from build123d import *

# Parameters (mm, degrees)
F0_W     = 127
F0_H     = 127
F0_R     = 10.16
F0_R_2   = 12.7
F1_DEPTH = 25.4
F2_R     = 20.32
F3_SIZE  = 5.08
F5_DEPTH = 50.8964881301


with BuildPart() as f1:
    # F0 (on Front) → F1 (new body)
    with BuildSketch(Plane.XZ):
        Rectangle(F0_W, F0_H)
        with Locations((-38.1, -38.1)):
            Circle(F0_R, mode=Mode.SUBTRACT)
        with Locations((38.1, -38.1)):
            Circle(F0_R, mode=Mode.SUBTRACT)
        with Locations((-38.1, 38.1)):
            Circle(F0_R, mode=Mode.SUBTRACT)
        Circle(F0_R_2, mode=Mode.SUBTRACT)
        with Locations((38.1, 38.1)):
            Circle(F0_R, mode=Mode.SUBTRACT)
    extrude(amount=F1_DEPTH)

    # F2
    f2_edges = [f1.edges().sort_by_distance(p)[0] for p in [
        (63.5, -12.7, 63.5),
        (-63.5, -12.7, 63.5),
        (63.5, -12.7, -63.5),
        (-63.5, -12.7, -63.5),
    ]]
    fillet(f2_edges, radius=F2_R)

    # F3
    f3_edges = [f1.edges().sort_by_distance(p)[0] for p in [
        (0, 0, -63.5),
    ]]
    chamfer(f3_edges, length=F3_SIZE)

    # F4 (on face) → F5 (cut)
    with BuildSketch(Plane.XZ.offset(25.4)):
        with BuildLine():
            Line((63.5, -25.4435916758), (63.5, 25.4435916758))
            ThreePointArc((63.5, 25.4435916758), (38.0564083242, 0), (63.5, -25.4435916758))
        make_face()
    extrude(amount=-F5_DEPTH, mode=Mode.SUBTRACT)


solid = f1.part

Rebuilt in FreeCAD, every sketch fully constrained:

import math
import FreeCAD as App
import Part
import Sketcher
from FreeCAD import Vector
Q = App.Units.Quantity


def edges_at(feature, points):
    """Names of the edges that pass closest to the given points."""
    edges = feature.Shape.Edges
    near = lambda p: min(range(len(edges)), key=lambda i: edges[i].distToShape(Part.Vertex(*p))[0])
    return sorted({f"Edge{near(p) + 1}" for p in points})

doc = App.newDocument("Part")
params = doc.addObject("Spreadsheet::Sheet", "Params")
for row, (alias, value) in enumerate([
    ("sketch1_diameter", "1 in"),
    ("sketch1_diameter2", "0.8 in"),
    ("sketch1_width", "5 in"),
    ("pad1_length", "1 in"),
    ("fillet_radius", "0.8 in"),
    ("chamfer_size", "0.2 in"),
    ("pocket1_length", "50.896488 mm"),
], start=1):
    params.set(f"A{row}", alias)
    params.set(f"B{row}", "=" + value)
    params.setAlias(f"B{row}", alias)

body = doc.addObject("PartDesign::Body", "Body")

# Sketch on XZ plane
sketch1 = body.newObject("Sketcher::SketchObject", "Sketch")
sketch1.AttachmentSupport = (doc.getObject("XZ_Plane"), [""])
sketch1.MapMode = "FlatFace"
sketch1.addGeometry([
    Part.LineSegment(Vector(-64, 64, 0), Vector(-64, -64, 0)),  # 0
    Part.LineSegment(Vector(-64, -64, 0), Vector(64, -64, 0)),  # 1
    Part.LineSegment(Vector(64, -64, 0), Vector(64, 64, 0)),  # 2
    Part.LineSegment(Vector(64, 64, 0), Vector(-64, 64, 0)),  # 3
    Part.Circle(Vector(-38, -38, 0), Vector(0, 0, 1), 10),  # 4
    Part.Circle(Vector(38, -38, 0), Vector(0, 0, 1), 10),  # 5
    Part.Circle(Vector(-38, 38, 0), Vector(0, 0, 1), 10),  # 6
    Part.Circle(Vector(0, 0, 0), Vector(0, 0, 1), 13),  # 7
    Part.Circle(Vector(38, 38, 0), Vector(0, 0, 1), 10),  # 8
], False)
sketch1.addConstraint([
    Sketcher.Constraint("Coincident", 0, 2, 1, 1),
    Sketcher.Constraint("Coincident", 1, 2, 2, 1),
    Sketcher.Constraint("Coincident", 2, 2, 3, 1),
    Sketcher.Constraint("Coincident", 3, 2, 0, 1),
    Sketcher.Constraint("Vertical", 0),
    Sketcher.Constraint("Horizontal", 1),
    Sketcher.Constraint("Vertical", 2),
    Sketcher.Constraint("Horizontal", 3),
    Sketcher.Constraint("Coincident", 7, 3, -1, 1),
    Sketcher.Constraint("Equal", 4, 5),
    Sketcher.Constraint("Equal", 5, 6),
    Sketcher.Constraint("Equal", 6, 8),
    Sketcher.Constraint("Symmetric", 5, 3, 6, 3, -1, 1),
    Sketcher.Constraint("Symmetric", 4, 3, 8, 3, -1, 1),
    Sketcher.Constraint("Symmetric", 0, 2, 2, 2, -1, 1),
    Sketcher.Constraint("Symmetric", 4, 3, 5, 3, -2),
    Sketcher.Constraint("Equal", 3, 0),
    Sketcher.Constraint("Diameter", 7, Q("1 in")),
    Sketcher.Constraint("Diameter", 4, Q("0.8 in")),
    Sketcher.Constraint("DistanceX", 1, 1, 1, 2, Q("5 in")),
    Sketcher.Constraint("DistanceX", 4, 3, 5, 3, Q("3 in")),
    Sketcher.Constraint("DistanceY", 4, 3, 6, 3, Q("3 in")),
])
sketch1.setExpression("Constraints[17]", "Params.sketch1_diameter")
sketch1.setExpression("Constraints[18]", "Params.sketch1_diameter2")
sketch1.setExpression("Constraints[19]", "Params.sketch1_width")
pad1 = body.newObject("PartDesign::Pad", "Pad")
pad1.Profile = sketch1
pad1.setExpression("Length", "Params.pad1_length")
doc.recompute()

fillet = body.newObject("PartDesign::Fillet", "Fillet")
fillet.Base = (pad1, edges_at(pad1, [
    (63.5, -12.7, 63.5),
    (-63.5, -12.7, 63.5),
    (63.5, -12.7, -63.5),
    (-63.5, -12.7, -63.5),
]))
fillet.setExpression("Radius", "Params.fillet_radius")
doc.recompute()

chamfer = body.newObject("PartDesign::Chamfer", "Chamfer")
chamfer.Base = (fillet, edges_at(fillet, [(0, 0, -63.5)]))
chamfer.setExpression("Size", "Params.chamfer_size")

# Sketch on XZ plane
sketch2 = body.newObject("Sketcher::SketchObject", "Sketch001")
sketch2.AttachmentSupport = (doc.getObject("XZ_Plane"), [""])
sketch2.MapMode = "FlatFace"
sketch2.AttachmentOffset = App.Placement(Vector(0, 0, 1 * 25.4), App.Rotation())
sketch2.addGeometry([
    Part.LineSegment(Vector(64, -25, 0), Vector(64, 25, 0)),
    Part.ArcOfCircle(Part.Circle(Vector(64, 0, 0), Vector(0, 0, 1), 25), math.radians(90), math.radians(270)),
], False)
sketch2.addConstraint([
    Sketcher.Constraint("Coincident", 0, 1, 1, 2),
    Sketcher.Constraint("Coincident", 1, 1, 0, 2),
    Sketcher.Constraint("Vertical", 0),
    Sketcher.Constraint("PointOnObject", 1, 3, -1),
    Sketcher.Constraint("Vertical", 1, 3, 0, 1),
    Sketcher.Constraint("DistanceX", -1, 1, 1, 3, Q("2.5 in")),
    Sketcher.Constraint("Radius", 1, Q("25.443592 mm")),
])
pocket1 = body.newObject("PartDesign::Pocket", "Pocket")
pocket1.Profile = sketch2
pocket1.setExpression("Length", "Params.pocket1_length")

doc.recompute()
